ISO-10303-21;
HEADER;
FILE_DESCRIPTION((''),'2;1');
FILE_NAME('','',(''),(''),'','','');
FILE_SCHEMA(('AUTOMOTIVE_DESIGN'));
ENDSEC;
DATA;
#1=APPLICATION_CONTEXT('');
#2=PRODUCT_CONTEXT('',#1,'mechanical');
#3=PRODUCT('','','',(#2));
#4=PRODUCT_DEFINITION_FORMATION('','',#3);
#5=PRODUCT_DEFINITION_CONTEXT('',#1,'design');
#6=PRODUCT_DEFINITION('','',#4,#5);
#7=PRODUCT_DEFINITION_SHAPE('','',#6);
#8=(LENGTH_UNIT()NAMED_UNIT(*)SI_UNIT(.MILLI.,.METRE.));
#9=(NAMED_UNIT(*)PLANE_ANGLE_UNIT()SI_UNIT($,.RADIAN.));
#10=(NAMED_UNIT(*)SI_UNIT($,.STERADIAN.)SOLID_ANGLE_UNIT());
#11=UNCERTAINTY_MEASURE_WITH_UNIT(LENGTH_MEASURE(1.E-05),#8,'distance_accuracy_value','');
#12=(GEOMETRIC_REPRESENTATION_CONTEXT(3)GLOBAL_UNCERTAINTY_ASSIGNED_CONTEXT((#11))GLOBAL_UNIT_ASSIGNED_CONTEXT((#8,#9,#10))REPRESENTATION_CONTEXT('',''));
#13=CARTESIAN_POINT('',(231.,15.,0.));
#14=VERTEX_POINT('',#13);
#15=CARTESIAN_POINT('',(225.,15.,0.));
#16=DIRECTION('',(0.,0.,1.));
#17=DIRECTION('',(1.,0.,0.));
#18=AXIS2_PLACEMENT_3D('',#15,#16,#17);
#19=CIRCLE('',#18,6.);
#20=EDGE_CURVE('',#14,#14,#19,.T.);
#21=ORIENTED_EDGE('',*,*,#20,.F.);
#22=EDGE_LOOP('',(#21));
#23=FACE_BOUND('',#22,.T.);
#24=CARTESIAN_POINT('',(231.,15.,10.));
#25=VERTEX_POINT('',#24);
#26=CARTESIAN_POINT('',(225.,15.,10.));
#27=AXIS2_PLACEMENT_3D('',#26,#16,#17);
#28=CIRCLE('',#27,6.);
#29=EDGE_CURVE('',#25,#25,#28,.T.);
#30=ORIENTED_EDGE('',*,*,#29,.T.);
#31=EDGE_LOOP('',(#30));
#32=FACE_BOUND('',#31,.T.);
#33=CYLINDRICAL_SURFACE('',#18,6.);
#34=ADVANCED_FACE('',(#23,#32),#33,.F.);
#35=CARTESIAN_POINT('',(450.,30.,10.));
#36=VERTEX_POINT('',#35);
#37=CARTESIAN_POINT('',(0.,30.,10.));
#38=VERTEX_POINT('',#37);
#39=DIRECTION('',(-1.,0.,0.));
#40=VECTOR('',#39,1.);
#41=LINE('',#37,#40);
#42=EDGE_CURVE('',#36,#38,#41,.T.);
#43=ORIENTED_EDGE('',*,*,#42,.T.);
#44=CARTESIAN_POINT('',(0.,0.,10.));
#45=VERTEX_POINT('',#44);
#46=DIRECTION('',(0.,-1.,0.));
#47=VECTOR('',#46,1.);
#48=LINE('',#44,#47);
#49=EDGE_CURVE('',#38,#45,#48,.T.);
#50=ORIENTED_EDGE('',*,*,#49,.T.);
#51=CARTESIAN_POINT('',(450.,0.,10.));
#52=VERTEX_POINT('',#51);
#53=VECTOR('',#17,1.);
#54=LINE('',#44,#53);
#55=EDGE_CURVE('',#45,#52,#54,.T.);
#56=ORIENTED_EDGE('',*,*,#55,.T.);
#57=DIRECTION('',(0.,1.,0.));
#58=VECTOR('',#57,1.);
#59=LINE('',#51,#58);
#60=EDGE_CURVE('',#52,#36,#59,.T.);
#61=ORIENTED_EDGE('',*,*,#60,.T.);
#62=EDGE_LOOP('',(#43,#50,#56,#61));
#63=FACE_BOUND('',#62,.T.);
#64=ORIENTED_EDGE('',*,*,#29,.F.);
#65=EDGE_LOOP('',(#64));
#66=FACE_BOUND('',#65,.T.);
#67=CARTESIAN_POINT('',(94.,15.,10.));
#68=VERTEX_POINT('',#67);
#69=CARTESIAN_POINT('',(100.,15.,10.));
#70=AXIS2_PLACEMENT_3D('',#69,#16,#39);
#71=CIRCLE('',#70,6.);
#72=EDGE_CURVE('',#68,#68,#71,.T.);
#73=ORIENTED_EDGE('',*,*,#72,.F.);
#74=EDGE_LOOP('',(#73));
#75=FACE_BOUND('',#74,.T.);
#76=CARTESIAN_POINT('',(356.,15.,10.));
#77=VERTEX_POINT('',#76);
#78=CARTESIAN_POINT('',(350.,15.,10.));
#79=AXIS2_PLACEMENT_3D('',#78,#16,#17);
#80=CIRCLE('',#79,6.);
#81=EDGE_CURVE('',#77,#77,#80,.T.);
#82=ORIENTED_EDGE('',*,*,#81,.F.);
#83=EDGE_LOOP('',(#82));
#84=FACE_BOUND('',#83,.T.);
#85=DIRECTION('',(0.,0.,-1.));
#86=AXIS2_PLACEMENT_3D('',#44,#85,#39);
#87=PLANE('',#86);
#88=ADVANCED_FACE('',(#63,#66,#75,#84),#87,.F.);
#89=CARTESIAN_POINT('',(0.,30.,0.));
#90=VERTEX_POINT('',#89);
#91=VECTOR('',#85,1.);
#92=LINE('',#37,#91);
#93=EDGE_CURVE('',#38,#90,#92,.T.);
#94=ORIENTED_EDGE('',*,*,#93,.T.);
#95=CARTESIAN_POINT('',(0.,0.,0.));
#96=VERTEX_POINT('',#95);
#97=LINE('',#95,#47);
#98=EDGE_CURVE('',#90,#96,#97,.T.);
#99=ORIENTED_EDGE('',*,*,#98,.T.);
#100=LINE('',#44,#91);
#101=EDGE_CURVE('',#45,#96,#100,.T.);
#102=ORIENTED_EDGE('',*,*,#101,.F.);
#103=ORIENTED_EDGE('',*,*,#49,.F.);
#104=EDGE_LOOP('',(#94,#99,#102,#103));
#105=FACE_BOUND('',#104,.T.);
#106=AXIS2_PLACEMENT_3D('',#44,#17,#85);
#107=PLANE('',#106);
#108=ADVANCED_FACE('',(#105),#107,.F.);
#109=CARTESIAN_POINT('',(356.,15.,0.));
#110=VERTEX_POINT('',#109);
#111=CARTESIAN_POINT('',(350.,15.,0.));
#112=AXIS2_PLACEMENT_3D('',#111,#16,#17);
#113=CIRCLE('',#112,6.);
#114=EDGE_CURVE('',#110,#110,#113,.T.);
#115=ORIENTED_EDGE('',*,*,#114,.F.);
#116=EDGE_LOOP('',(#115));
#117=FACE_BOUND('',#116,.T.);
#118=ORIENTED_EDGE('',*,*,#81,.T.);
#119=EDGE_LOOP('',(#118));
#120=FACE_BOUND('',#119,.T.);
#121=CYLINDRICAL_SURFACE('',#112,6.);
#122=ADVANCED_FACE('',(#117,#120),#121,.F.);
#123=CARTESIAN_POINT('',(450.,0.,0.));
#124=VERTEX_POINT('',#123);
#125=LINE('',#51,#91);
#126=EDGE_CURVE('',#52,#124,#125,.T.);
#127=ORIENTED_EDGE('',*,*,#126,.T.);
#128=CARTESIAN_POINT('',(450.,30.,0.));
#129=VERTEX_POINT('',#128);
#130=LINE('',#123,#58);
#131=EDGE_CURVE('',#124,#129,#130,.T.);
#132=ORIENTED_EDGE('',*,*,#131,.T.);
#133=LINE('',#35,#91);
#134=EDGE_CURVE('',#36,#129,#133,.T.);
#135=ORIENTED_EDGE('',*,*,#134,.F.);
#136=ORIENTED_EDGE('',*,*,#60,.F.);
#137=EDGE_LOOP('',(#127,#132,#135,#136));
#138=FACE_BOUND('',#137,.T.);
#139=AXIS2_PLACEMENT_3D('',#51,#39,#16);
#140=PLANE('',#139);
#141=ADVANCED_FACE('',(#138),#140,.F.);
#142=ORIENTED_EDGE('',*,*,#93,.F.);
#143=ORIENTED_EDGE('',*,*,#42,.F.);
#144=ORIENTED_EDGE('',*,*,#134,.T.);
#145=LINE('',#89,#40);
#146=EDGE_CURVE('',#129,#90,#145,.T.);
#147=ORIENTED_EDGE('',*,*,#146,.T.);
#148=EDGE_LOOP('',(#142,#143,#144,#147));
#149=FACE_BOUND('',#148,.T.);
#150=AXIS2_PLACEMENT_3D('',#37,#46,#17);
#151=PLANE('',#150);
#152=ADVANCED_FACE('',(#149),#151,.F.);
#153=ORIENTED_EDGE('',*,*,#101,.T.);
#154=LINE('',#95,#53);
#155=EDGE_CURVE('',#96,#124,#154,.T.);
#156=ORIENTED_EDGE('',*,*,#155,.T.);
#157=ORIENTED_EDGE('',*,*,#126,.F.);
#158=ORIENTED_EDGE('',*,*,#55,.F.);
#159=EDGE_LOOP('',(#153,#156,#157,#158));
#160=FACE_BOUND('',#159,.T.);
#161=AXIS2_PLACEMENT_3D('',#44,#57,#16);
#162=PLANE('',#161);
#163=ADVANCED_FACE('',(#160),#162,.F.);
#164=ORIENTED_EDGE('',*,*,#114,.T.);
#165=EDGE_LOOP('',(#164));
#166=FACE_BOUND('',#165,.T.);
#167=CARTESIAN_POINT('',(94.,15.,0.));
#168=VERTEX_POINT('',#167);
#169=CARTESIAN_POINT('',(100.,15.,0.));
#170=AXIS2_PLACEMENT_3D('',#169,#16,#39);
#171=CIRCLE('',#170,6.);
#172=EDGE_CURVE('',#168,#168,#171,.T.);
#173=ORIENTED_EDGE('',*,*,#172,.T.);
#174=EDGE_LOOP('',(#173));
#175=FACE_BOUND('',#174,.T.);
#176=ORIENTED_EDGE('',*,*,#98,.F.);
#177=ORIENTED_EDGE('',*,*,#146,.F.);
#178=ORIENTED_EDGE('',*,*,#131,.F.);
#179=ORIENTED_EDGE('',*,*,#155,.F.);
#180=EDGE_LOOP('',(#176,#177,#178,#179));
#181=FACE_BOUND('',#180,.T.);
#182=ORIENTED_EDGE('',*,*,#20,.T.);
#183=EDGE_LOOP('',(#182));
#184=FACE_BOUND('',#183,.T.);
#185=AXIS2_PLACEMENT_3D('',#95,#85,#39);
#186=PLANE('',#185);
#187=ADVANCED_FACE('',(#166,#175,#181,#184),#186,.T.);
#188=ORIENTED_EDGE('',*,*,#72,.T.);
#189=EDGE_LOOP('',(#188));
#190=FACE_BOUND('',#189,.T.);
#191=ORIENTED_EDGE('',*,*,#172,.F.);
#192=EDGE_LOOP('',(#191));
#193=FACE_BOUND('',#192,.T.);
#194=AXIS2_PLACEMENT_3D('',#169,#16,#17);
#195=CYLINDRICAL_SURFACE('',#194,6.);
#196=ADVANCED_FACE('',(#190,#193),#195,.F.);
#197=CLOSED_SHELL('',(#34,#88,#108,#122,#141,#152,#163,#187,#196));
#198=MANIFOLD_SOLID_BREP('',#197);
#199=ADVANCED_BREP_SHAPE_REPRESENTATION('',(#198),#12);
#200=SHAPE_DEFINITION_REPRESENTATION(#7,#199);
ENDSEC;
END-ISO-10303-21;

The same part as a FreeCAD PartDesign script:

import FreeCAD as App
import Part
import Sketcher


def add_polygon(sketch, points):
    """Adds a closed chain of lines whose ends are joined by coincident constraints."""
    first, n = sketch.GeometryCount, len(points)
    for a, b in zip(points, points[1:] + points[:1]):
        sketch.addGeometry(Part.LineSegment(App.Vector(*a, 0), App.Vector(*b, 0)), False)
    for i in range(n):
        sketch.addConstraint(Sketcher.Constraint("Coincident", first + i, 2, first + (i + 1) % n, 1))

doc = App.newDocument("Part")
body = doc.addObject("PartDesign::Body", "Body")

sketch1 = body.newObject("Sketcher::SketchObject", "Sketch")
sketch1.AttachmentSupport = (doc.getObject("XY_Plane"), [""])
sketch1.MapMode = "FlatFace"
add_polygon(sketch1, [(0, 30), (0, 0), (450, 0), (450, 30)])
sketch1.addConstraint([
    Sketcher.Constraint("Vertical", 0),
    Sketcher.Constraint("Horizontal", 1),
    Sketcher.Constraint("Vertical", 2),
    Sketcher.Constraint("Horizontal", 3),
    Sketcher.Constraint("Coincident", 0, 2, -1, 1),
    Sketcher.Constraint("DistanceX", 1, 1, 1, 2, 450.0),
    Sketcher.Constraint("DistanceY", 0, 2, 0, 1, 30.0),
])
pad1 = body.newObject("PartDesign::Pad", "Pad")
pad1.Profile = sketch1
pad1.Length = 10

sketch2 = body.newObject("Sketcher::SketchObject", "Sketch001")
sketch2.AttachmentSupport = (doc.getObject("XY_Plane"), [""])
sketch2.MapMode = "FlatFace"
sketch2.AttachmentOffset = App.Placement(App.Vector(0, 0, 10), App.Rotation())
sketch2.addGeometry([
    Part.Circle(App.Vector(225, 15, 0), App.Vector(0, 0, 1), 6),
    Part.Circle(App.Vector(350, 15, 0), App.Vector(0, 0, 1), 6),
    Part.Circle(App.Vector(100, 15, 0), App.Vector(0, 0, 1), 6),
], False)
sketch2.addConstraint([
    Sketcher.Constraint("Equal", 0, 1),
    Sketcher.Constraint("Equal", 1, 2),
    Sketcher.Constraint("Horizontal", 0, 3, 1, 3),
    Sketcher.Constraint("Horizontal", 1, 3, 2, 3),
    Sketcher.Constraint("Diameter", 0, 12.0),
    Sketcher.Constraint("DistanceX", -1, 1, 0, 3, 225.0),
    Sketcher.Constraint("DistanceY", -1, 1, 0, 3, 15.0),
    Sketcher.Constraint("DistanceX", -1, 1, 1, 3, 350.0),
    Sketcher.Constraint("DistanceX", -1, 1, 2, 3, 100.0),
])
pocket1 = body.newObject("PartDesign::Pocket", "Pocket")
pocket1.Profile = sketch2
pocket1.Type = "ThroughAll"

doc.recompute()
